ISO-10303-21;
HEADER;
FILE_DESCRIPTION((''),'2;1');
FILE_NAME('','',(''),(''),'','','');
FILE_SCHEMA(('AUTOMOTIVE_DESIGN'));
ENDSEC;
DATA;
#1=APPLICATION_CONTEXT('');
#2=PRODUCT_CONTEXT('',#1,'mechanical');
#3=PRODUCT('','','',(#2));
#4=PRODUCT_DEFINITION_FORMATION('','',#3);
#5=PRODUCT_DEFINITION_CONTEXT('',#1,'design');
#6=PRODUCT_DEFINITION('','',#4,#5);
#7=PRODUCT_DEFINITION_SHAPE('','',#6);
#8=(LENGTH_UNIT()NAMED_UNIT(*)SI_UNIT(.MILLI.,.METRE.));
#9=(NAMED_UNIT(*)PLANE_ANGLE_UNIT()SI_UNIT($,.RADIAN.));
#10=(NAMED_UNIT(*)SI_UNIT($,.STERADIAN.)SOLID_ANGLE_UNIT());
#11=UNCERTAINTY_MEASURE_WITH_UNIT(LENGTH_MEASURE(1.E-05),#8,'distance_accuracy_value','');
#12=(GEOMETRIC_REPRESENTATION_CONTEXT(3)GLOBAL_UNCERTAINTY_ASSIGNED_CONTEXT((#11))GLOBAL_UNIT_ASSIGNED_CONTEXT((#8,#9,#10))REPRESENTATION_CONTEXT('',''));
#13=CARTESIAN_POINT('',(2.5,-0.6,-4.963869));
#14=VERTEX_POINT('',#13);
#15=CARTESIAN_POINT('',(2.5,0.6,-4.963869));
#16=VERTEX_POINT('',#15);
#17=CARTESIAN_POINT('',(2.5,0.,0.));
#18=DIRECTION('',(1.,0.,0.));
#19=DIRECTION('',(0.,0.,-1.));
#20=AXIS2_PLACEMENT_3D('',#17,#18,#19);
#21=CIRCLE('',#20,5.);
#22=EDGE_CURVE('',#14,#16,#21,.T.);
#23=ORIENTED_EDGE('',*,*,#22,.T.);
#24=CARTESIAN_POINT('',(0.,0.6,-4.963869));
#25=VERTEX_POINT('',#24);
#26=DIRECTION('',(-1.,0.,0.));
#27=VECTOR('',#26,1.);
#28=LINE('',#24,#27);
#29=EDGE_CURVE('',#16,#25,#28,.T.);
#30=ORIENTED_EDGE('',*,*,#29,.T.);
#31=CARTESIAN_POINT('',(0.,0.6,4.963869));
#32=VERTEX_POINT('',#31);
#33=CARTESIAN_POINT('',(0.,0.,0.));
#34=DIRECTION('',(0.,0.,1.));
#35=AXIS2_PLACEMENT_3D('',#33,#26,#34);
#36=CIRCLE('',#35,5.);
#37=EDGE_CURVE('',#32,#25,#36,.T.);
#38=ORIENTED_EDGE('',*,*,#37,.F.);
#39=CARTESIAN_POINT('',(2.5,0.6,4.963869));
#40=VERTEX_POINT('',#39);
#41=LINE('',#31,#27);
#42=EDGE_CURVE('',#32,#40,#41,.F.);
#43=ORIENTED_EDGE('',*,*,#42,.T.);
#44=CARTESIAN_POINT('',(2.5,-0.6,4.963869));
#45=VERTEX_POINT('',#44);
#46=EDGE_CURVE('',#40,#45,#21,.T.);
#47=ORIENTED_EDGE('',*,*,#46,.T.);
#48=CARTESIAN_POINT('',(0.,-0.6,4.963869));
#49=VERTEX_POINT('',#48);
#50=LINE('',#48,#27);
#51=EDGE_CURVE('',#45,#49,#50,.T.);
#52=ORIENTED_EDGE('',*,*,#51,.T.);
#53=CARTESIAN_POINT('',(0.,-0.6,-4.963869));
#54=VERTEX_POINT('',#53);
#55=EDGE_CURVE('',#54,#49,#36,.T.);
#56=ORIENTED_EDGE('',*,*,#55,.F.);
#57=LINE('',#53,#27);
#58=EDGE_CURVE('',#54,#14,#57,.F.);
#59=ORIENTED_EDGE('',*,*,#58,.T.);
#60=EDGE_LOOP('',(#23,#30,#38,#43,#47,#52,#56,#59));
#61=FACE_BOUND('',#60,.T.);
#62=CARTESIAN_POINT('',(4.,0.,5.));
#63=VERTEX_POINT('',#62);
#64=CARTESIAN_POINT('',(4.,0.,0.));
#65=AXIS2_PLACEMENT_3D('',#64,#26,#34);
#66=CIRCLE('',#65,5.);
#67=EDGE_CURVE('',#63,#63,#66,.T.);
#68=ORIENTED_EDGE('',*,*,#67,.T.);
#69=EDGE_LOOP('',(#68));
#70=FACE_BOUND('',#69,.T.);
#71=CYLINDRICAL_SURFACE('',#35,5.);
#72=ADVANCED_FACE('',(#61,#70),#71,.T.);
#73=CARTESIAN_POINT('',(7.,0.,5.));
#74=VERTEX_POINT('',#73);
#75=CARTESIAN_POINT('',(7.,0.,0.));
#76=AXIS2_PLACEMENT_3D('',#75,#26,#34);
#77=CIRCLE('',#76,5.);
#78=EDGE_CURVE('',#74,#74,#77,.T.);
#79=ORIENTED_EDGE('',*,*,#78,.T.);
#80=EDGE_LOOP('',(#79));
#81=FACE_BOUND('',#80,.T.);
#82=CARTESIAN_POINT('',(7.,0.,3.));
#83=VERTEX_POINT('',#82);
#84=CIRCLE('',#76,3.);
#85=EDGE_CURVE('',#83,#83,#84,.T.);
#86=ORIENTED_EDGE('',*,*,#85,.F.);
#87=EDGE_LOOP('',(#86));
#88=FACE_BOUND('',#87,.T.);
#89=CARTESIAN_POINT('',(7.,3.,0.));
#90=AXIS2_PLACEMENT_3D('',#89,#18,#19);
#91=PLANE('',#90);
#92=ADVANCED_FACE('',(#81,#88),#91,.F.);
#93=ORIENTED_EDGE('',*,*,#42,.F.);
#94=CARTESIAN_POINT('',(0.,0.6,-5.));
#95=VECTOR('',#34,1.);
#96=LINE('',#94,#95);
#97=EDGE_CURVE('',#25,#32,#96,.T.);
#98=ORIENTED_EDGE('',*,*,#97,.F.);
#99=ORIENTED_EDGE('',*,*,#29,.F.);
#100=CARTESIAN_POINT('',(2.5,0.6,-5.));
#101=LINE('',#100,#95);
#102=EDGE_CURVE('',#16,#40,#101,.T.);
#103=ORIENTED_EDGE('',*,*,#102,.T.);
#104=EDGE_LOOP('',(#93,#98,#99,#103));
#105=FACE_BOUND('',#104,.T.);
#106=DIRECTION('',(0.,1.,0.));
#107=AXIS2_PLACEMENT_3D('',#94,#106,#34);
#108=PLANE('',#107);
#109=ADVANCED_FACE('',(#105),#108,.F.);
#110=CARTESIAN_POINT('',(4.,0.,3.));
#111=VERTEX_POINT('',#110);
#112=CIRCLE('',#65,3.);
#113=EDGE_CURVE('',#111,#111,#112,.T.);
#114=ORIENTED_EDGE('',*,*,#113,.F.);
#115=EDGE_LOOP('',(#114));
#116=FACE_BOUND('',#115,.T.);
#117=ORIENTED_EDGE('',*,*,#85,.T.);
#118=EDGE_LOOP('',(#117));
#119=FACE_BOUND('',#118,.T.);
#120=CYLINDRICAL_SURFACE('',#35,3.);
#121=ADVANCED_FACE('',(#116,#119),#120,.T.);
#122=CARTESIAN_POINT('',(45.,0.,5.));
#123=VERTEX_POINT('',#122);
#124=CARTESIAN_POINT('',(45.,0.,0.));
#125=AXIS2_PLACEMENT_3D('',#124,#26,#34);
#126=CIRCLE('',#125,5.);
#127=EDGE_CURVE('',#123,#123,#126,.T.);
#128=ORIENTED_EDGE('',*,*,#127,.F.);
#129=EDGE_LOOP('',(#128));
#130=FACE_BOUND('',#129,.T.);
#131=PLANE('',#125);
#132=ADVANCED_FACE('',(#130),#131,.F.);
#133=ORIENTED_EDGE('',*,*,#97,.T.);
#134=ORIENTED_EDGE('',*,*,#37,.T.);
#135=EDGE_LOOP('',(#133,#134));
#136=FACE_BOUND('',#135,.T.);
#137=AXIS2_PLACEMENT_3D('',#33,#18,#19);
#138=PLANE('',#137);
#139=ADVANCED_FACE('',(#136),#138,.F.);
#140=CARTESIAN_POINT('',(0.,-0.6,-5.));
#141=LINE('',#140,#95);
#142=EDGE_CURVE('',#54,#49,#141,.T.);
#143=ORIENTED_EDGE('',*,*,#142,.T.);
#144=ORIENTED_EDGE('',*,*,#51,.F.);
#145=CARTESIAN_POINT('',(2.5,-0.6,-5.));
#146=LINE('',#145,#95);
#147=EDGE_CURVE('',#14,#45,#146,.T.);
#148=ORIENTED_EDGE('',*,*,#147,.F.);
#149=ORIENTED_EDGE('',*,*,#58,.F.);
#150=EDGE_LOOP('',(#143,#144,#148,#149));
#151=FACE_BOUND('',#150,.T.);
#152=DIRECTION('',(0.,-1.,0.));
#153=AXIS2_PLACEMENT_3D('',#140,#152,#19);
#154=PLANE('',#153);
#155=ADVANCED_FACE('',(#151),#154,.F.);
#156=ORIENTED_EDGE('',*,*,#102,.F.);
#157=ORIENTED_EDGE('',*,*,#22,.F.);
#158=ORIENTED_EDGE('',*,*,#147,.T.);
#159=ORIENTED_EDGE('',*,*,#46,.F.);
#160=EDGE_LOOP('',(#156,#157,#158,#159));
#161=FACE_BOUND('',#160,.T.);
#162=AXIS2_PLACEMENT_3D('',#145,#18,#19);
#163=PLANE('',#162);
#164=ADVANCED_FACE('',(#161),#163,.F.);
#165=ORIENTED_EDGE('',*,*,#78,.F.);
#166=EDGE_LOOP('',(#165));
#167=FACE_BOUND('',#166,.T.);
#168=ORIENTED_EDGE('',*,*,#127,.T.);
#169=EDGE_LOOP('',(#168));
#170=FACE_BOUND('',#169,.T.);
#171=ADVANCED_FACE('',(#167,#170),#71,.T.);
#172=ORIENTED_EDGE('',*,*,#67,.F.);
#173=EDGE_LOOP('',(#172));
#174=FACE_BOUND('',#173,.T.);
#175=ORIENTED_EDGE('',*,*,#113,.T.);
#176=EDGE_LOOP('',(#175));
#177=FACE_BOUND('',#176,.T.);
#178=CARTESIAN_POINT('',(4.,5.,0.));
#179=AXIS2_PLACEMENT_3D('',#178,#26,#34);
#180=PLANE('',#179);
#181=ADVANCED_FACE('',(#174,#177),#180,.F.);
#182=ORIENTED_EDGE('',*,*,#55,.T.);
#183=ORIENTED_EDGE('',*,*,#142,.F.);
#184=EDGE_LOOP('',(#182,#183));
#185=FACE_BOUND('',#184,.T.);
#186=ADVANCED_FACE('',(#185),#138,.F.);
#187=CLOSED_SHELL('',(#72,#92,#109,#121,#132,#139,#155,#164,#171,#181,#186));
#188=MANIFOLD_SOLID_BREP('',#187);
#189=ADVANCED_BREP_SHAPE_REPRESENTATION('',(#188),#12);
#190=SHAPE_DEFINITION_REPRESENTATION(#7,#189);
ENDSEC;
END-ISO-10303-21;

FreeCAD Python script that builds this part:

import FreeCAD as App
import Part
import Sketcher

V = App.Vector

doc = App.newDocument("Part")
params = doc.addObject("Spreadsheet::Sheet", "Params")
for row, (alias, value) in enumerate([
    ("sketch1_width", "4 mm"),
    ("sketch1_width2", "45 mm"),
    ("sketch1_width3", "38 mm"),
    ("sketch1_height", "2 mm"),
    ("sketch1_height2", "5 mm"),
    ("revolution_angle", "360 deg"),
    ("sketch2_width", "2.5 mm"),
    ("sketch2_height", "1.2 mm"),
], start=1):
    params.set(f"A{row}", alias)
    params.set(f"B{row}", "=" + value)
    params.setAlias(f"B{row}", alias)

body = doc.addObject("PartDesign::Body", "Body")

# Sketch on XY plane
sketch1 = body.newObject("Sketcher::SketchObject", "Sketch")
sketch1.AttachmentSupport = (doc.getObject("XY_Plane"), [""])
sketch1.MapMode = "FlatFace"
sketch1.addGeometry(Part.LineSegment(V(4, 3, 0), V(4, 5, 0)), False)
sketch1.addGeometry(Part.LineSegment(V(4, 5, 0), V(0, 5, 0)), False)
sketch1.addGeometry(Part.LineSegment(V(0, 5, 0), V(0, 0, 0)), False)
sketch1.addGeometry(Part.LineSegment(V(0, 0, 0), V(45, 0, 0)), False)
sketch1.addGeometry(Part.LineSegment(V(45, 0, 0), V(45, 5, 0)), False)
sketch1.addGeometry(Part.LineSegment(V(45, 5, 0), V(7, 5, 0)), False)
sketch1.addGeometry(Part.LineSegment(V(7, 5, 0), V(7, 3, 0)), False)
sketch1.addGeometry(Part.LineSegment(V(7, 3, 0), V(4, 3, 0)), False)
sketch1.addConstraint(Sketcher.Constraint("Coincident", 0, 2, 1, 1))
sketch1.addConstraint(Sketcher.Constraint("Coincident", 1, 2, 2, 1))
sketch1.addConstraint(Sketcher.Constraint("Coincident", 2, 2, 3, 1))
sketch1.addConstraint(Sketcher.Constraint("Coincident", 3, 2, 4, 1))
sketch1.addConstraint(Sketcher.Constraint("Coincident", 4, 2, 5, 1))
sketch1.addConstraint(Sketcher.Constraint("Coincident", 5, 2, 6, 1))
sketch1.addConstraint(Sketcher.Constraint("Coincident", 6, 2, 7, 1))
sketch1.addConstraint(Sketcher.Constraint("Coincident", 7, 2, 0, 1))
sketch1.addConstraint(Sketcher.Constraint("Vertical", 0))
sketch1.addConstraint(Sketcher.Constraint("Horizontal", 1))
sketch1.addConstraint(Sketcher.Constraint("Vertical", 2))
sketch1.addConstraint(Sketcher.Constraint("Horizontal", 3))
sketch1.addConstraint(Sketcher.Constraint("Vertical", 4))
sketch1.addConstraint(Sketcher.Constraint("Horizontal", 5))
sketch1.addConstraint(Sketcher.Constraint("Vertical", 6))
sketch1.addConstraint(Sketcher.Constraint("Horizontal", 7))
sketch1.addConstraint(Sketcher.Constraint("Coincident", 2, 2, -1, 1))
sketch1.addConstraint(Sketcher.Constraint("Horizontal", 1, 2, 4, 2))
sketch1.addConstraint(Sketcher.Constraint("DistanceX", 1, 2, 1, 1, 4.0))
sketch1.addConstraint(Sketcher.Constraint("DistanceX", 3, 1, 3, 2, 45.0))
sketch1.addConstraint(Sketcher.Constraint("DistanceX", 5, 2, 5, 1, 38.0))
sketch1.addConstraint(Sketcher.Constraint("DistanceY", 0, 1, 0, 2, 2.0))
sketch1.addConstraint(Sketcher.Constraint("DistanceY", 2, 2, 2, 1, 5.0))
sketch1.setExpression("Constraints[18]", "Params.sketch1_width")
sketch1.setExpression("Constraints[19]", "Params.sketch1_width2")
sketch1.setExpression("Constraints[20]", "Params.sketch1_width3")
sketch1.setExpression("Constraints[21]", "Params.sketch1_height")
sketch1.setExpression("Constraints[22]", "Params.sketch1_height2")
revolution = body.newObject("PartDesign::Revolution", "Revolution")
revolution.Profile = sketch1
revolution.ReferenceAxis = (sketch1, ["H_Axis"])
revolution.setExpression("Angle", "Params.revolution_angle")

# Sketch on XY plane
sketch2 = body.newObject("Sketcher::SketchObject", "Sketch001")
sketch2.AttachmentSupport = (doc.getObject("XY_Plane"), [""])
sketch2.MapMode = "FlatFace"
sketch2.addGeometry(Part.LineSegment(V(0, 0.6, 0), V(0, -0.6, 0)), False)
sketch2.addGeometry(Part.LineSegment(V(0, -0.6, 0), V(2.5, -0.6, 0)), False)
sketch2.addGeometry(Part.LineSegment(V(2.5, -0.6, 0), V(2.5, 0.6, 0)), False)
sketch2.addGeometry(Part.LineSegment(V(2.5, 0.6, 0), V(0, 0.6, 0)), False)
sketch2.addConstraint(Sketcher.Constraint("Coincident", 0, 2, 1, 1))
sketch2.addConstraint(Sketcher.Constraint("Coincident", 1, 2, 2, 1))
sketch2.addConstraint(Sketcher.Constraint("Coincident", 2, 2, 3, 1))
sketch2.addConstraint(Sketcher.Constraint("Coincident", 3, 2, 0, 1))
sketch2.addConstraint(Sketcher.Constraint("Vertical", 0))
sketch2.addConstraint(Sketcher.Constraint("Horizontal", 1))
sketch2.addConstraint(Sketcher.Constraint("Vertical", 2))
sketch2.addConstraint(Sketcher.Constraint("Horizontal", 3))
sketch2.addConstraint(Sketcher.Constraint("Symmetric", 0, 2, 3, 2, -1, 1))
sketch2.addConstraint(Sketcher.Constraint("DistanceX", 1, 1, 1, 2, 2.5))
sketch2.addConstraint(Sketcher.Constraint("DistanceY", 0, 2, 0, 1, 1.2))
sketch2.setExpression("Constraints[9]", "Params.sketch2_width")
sketch2.setExpression("Constraints[10]", "Params.sketch2_height")
pocket1 = body.newObject("PartDesign::Pocket", "Pocket")
pocket1.Profile = sketch2
pocket1.Type = "ThroughAll"
pocket1.Midplane = True

doc.recompute()
